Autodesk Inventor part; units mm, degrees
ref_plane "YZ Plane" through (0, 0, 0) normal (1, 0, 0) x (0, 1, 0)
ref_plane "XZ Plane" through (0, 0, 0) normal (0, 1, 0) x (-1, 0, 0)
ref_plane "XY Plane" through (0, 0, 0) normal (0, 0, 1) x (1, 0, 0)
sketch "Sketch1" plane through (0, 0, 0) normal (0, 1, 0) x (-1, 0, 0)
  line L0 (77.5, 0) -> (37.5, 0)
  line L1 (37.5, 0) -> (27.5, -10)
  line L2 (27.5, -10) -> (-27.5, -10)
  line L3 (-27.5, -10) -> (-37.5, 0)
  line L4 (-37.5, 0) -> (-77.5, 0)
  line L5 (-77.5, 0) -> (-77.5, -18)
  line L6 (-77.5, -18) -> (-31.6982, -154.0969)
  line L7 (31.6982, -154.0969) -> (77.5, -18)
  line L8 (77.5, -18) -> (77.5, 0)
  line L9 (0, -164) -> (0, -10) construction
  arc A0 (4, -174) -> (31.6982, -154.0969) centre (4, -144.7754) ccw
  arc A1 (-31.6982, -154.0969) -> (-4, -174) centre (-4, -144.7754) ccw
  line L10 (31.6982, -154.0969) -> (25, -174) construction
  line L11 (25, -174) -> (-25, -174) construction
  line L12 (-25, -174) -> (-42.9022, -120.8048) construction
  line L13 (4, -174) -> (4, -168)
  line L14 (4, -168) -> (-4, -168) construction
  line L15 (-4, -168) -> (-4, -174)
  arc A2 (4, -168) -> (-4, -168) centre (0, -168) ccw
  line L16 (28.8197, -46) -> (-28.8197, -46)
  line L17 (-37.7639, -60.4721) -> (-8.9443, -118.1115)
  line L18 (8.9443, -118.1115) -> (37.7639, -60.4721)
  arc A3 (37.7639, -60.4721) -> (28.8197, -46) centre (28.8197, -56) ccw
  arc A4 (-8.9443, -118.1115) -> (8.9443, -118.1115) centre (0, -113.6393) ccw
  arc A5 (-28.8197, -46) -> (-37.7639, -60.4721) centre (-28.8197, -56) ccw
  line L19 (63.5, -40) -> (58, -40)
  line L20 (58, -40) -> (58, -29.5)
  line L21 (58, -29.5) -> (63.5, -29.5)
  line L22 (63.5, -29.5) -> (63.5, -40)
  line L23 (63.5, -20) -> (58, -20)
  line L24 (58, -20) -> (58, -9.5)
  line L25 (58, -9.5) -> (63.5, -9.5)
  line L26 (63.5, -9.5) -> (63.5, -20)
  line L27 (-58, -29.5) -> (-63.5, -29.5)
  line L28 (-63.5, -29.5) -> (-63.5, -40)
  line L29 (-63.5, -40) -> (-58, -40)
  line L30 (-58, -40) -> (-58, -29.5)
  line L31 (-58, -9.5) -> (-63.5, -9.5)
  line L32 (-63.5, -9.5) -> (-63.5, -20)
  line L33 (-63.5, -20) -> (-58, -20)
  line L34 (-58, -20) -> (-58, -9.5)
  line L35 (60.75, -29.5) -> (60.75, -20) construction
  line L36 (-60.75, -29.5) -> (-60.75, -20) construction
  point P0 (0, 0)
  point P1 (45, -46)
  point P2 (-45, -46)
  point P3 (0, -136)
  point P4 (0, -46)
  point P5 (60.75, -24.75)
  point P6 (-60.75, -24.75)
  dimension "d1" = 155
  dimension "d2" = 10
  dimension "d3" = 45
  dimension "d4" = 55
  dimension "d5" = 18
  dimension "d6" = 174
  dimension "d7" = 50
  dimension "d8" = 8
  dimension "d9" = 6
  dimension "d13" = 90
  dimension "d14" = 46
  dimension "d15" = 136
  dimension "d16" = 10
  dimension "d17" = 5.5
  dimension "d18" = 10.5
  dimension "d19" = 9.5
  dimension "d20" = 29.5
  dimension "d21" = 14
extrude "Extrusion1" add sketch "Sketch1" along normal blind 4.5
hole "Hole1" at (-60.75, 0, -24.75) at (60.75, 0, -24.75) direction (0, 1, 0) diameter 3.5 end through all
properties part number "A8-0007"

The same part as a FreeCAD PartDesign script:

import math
import FreeCAD as App
import Part
import Sketcher

V = App.Vector
Q = App.Units.Quantity

doc = App.newDocument("Part")
body = doc.addObject("PartDesign::Body", "Body")

# Sketch on XZ plane
sketch1 = body.newObject("Sketcher::SketchObject", "Sketch")
sketch1.AttachmentSupport = (doc.getObject("XZ_Plane"), [""])
sketch1.MapMode = "FlatFace"
sketch1.addGeometry(Part.LineSegment(V(-77.5, -18, 0), V(-77.5, 0, 0)), False)
sketch1.addGeometry(Part.LineSegment(V(-77.5, 0, 0), V(-37.5, 0, 0)), False)
sketch1.addGeometry(Part.LineSegment(V(-37.5, 0, 0), V(-27.5, -10, 0)), False)
sketch1.addGeometry(Part.LineSegment(V(-27.5, -10, 0), V(27.5, -10, 0)), False)
sketch1.addGeometry(Part.LineSegment(V(27.5, -10, 0), V(37.5, 0, 0)), False)
sketch1.addGeometry(Part.LineSegment(V(37.5, 0, 0), V(77.5, 0, 0)), False)
sketch1.addGeometry(Part.LineSegment(V(77.5, 0, 0), V(77.5, -18, 0)), False)
sketch1.addGeometry(Part.LineSegment(V(77.5, -18, 0), V(31.6982, -154.0969, 0)), False)
sketch1.addGeometry(Part.ArcOfCircle(Part.Circle(V(4, -144.7754, 0), V(0, 0, 1), 29.224658), math.radians(-90), math.radians(-18.600048)), False)
sketch1.addGeometry(Part.LineSegment(V(4, -174, 0), V(4, -168, 0)), False)
sketch1.addGeometry(Part.ArcOfCircle(Part.Circle(V(0, -168, 0), V(0, 0, 1), 4), math.radians(0), math.radians(180)), False)
sketch1.addGeometry(Part.LineSegment(V(-4, -168, 0), V(-4, -174, 0)), False)
sketch1.addGeometry(Part.ArcOfCircle(Part.Circle(V(-4, -144.7754, 0), V(0, 0, 1), 29.2246), math.radians(-161.399952), math.radians(-90)), False)
sketch1.addGeometry(Part.LineSegment(V(-31.6982, -154.0969, 0), V(-77.5, -18, 0)), False)
sketch1.addGeometry(Part.LineSegment(V(28.8197, -46, 0), V(-28.8197, -46, 0)), False)
sketch1.addGeometry(Part.ArcOfCircle(Part.Circle(V(-28.8197, -56, 0), V(0, 0, 1), 9.99992), math.radians(90), math.radians(206.565051)), False)
sketch1.addGeometry(Part.LineSegment(V(-37.7639, -60.4721, 0), V(-8.9443, -118.1115, 0)), False)
sketch1.addGeometry(Part.ArcOfCircle(Part.Circle(V(0, -113.6393, 0), V(0, 0, 1), 10.000054), math.radians(-153.434693), math.radians(-26.565307)), False)
sketch1.addGeometry(Part.LineSegment(V(8.9443, -118.1115, 0), V(37.7639, -60.4721, 0)), False)
sketch1.addGeometry(Part.ArcOfCircle(Part.Circle(V(28.8197, -56, 0), V(0, 0, 1), 10), math.radians(-26.565051), math.radians(90)), False)
sketch1.addGeometry(Part.LineSegment(V(63.5, -29.5, 0), V(58, -29.5, 0)), False)
sketch1.addGeometry(Part.LineSegment(V(58, -29.5, 0), V(58, -40, 0)), False)
sketch1.addGeometry(Part.LineSegment(V(58, -40, 0), V(63.5, -40, 0)), False)
sketch1.addGeometry(Part.LineSegment(V(63.5, -40, 0), V(63.5, -29.5, 0)), False)
sketch1.addGeometry(Part.LineSegment(V(63.5, -9.5, 0), V(58, -9.5, 0)), False)
sketch1.addGeometry(Part.LineSegment(V(58, -9.5, 0), V(58, -20, 0)), False)
sketch1.addGeometry(Part.LineSegment(V(58, -20, 0), V(63.5, -20, 0)), False)
sketch1.addGeometry(Part.LineSegment(V(63.5, -20, 0), V(63.5, -9.5, 0)), False)
sketch1.addGeometry(Part.LineSegment(V(-63.5, -29.5, 0), V(-63.5, -40, 0)), False)
sketch1.addGeometry(Part.LineSegment(V(-63.5, -40, 0), V(-58, -40, 0)), False)
sketch1.addGeometry(Part.LineSegment(V(-58, -40, 0), V(-58, -29.5, 0)), False)
sketch1.addGeometry(Part.LineSegment(V(-58, -29.5, 0), V(-63.5, -29.5, 0)), False)
sketch1.addGeometry(Part.LineSegment(V(-63.5, -9.5, 0), V(-63.5, -20, 0)), False)
sketch1.addGeometry(Part.LineSegment(V(-63.5, -20, 0), V(-58, -20, 0)), False)
sketch1.addGeometry(Part.LineSegment(V(-58, -20, 0), V(-58, -9.5, 0)), False)
sketch1.addGeometry(Part.LineSegment(V(-58, -9.5, 0), V(-63.5, -9.5, 0)), False)
sketch1.addConstraint(Sketcher.Constraint("Coincident", 0, 2, 1, 1))
sketch1.addConstraint(Sketcher.Constraint("Coincident", 1, 2, 2, 1))
sketch1.addConstraint(Sketcher.Constraint("Coincident", 2, 2, 3, 1))
sketch1.addConstraint(Sketcher.Constraint("Coincident", 3, 2, 4, 1))
sketch1.addConstraint(Sketcher.Constraint("Coincident", 4, 2, 5, 1))
sketch1.addConstraint(Sketcher.Constraint("Coincident", 5, 2, 6, 1))
sketch1.addConstraint(Sketcher.Constraint("Coincident", 6, 2, 7, 1))
sketch1.addConstraint(Sketcher.Constraint("Tangent", 7, 2, 8, 2))
sketch1.addConstraint(Sketcher.Constraint("Coincident", 8, 1, 9, 1))
sketch1.addConstraint(Sketcher.Constraint("Tangent", 9, 2, 10, 1))
sketch1.addConstraint(Sketcher.Constraint("Tangent", 10, 2, 11, 1))
sketch1.addConstraint(Sketcher.Constraint("Coincident", 11, 2, 12, 2))
sketch1.addConstraint(Sketcher.Constraint("Tangent", 12, 1, 13, 1))
sketch1.addConstraint(Sketcher.Constraint("Coincident", 13, 2, 0, 1))
sketch1.addConstraint(Sketcher.Constraint("Tangent", 14, 2, 15, 1))
sketch1.addConstraint(Sketcher.Constraint("Tangent", 15, 2, 16, 1))
sketch1.addConstraint(Sketcher.Constraint("Tangent", 16, 2, 17, 1))
sketch1.addConstraint(Sketcher.Constraint("Tangent", 17, 2, 18, 1))
sketch1.addConstraint(Sketcher.Constraint("Tangent", 18, 2, 19, 1))
sketch1.addConstraint(Sketcher.Constraint("Tangent", 19, 2, 14, 1))
sketch1.addConstraint(Sketcher.Constraint("Coincident", 20, 2, 21, 1))
sketch1.addConstraint(Sketcher.Constraint("Coincident", 21, 2, 22, 1))
sketch1.addConstraint(Sketcher.Constraint("Coincident", 22, 2, 23, 1))
sketch1.addConstraint(Sketcher.Constraint("Coincident", 23, 2, 20, 1))
sketch1.addConstraint(Sketcher.Constraint("Coincident", 24, 2, 25, 1))
sketch1.addConstraint(Sketcher.Constraint("Coincident", 25, 2, 26, 1))
sketch1.addConstraint(Sketcher.Constraint("Coincident", 26, 2, 27, 1))
sketch1.addConstraint(Sketcher.Constraint("Coincident", 27, 2, 24, 1))
sketch1.addConstraint(Sketcher.Constraint("Coincident", 28, 2, 29, 1))
sketch1.addConstraint(Sketcher.Constraint("Coincident", 29, 2, 30, 1))
sketch1.addConstraint(Sketcher.Constraint("Coincident", 30, 2, 31, 1))
sketch1.addConstraint(Sketcher.Constraint("Coincident", 31, 2, 28, 1))
sketch1.addConstraint(Sketcher.Constraint("Coincident", 32, 2, 33, 1))
sketch1.addConstraint(Sketcher.Constraint("Coincident", 33, 2, 34, 1))
sketch1.addConstraint(Sketcher.Constraint("Coincident", 34, 2, 35, 1))
sketch1.addConstraint(Sketcher.Constraint("Coincident", 35, 2, 32, 1))
sketch1.addConstraint(Sketcher.Constraint("Vertical", 0))
sketch1.addConstraint(Sketcher.Constraint("Horizontal", 1))
sketch1.addConstraint(Sketcher.Constraint("Horizontal", 3))
sketch1.addConstraint(Sketcher.Constraint("Horizontal", 5))
sketch1.addConstraint(Sketcher.Constraint("Vertical", 6))
sketch1.addConstraint(Sketcher.Constraint("Vertical", 9))
sketch1.addConstraint(Sketcher.Constraint("Vertical", 11))
sketch1.addConstraint(Sketcher.Constraint("Horizontal", 14))
sketch1.addConstraint(Sketcher.Constraint("Horizontal", 20))
sketch1.addConstraint(Sketcher.Constraint("Vertical", 21))
sketch1.addConstraint(Sketcher.Constraint("Horizontal", 22))
sketch1.addConstraint(Sketcher.Constraint("Vertical", 23))
sketch1.addConstraint(Sketcher.Constraint("Horizontal", 24))
sketch1.addConstraint(Sketcher.Constraint("Vertical", 25))
sketch1.addConstraint(Sketcher.Constraint("Horizontal", 26))
sketch1.addConstraint(Sketcher.Constraint("Vertical", 27))
sketch1.addConstraint(Sketcher.Constraint("Vertical", 28))
sketch1.addConstraint(Sketcher.Constraint("Horizontal", 29))
sketch1.addConstraint(Sketcher.Constraint("Vertical", 30))
sketch1.addConstraint(Sketcher.Constraint("Horizontal", 31))
sketch1.addConstraint(Sketcher.Constraint("Vertical", 32))
sketch1.addConstraint(Sketcher.Constraint("Horizontal", 33))
sketch1.addConstraint(Sketcher.Constraint("Vertical", 34))
sketch1.addConstraint(Sketcher.Constraint("Horizontal", 35))
sketch1.addConstraint(Sketcher.Constraint("Equal", 8, 12))
sketch1.addConstraint(Sketcher.Constraint("Equal", 15, 17))
sketch1.addConstraint(Sketcher.Constraint("Equal", 17, 19))
sketch1.addConstraint(Sketcher.Constraint("Symmetric", 1, 2, 4, 2, -1, 1))
sketch1.addConstraint(Sketcher.Constraint("Symmetric", 8, 3, 12, 3, -2))
sketch1.addConstraint(Sketcher.Constraint("Symmetric", 0, 2, 5, 2, -2))
sketch1.addConstraint(Sketcher.Constraint("Symmetric", 16, 2, 17, 2, -2))
sketch1.addConstraint(Sketcher.Constraint("Symmetric", 22, 2, 28, 2, -2))
sketch1.addConstraint(Sketcher.Constraint("Symmetric", 20, 2, 30, 2, -2))
sketch1.addConstraint(Sketcher.Constraint("Symmetric", 26, 2, 32, 2, -2))
sketch1.addConstraint(Sketcher.Constraint("Symmetric", 24, 2, 34, 2, -2))
sketch1.addConstraint(Sketcher.Constraint("PointOnObject", 10, 3, -2))
sketch1.addConstraint(Sketcher.Constraint("Perpendicular", 2, 4))
sketch1.addConstraint(Sketcher.Constraint("Horizontal", 7, 2, 12, 1))
sketch1.addConstraint(Sketcher.Constraint("Vertical", 12, 3, 10, 2))
sketch1.addConstraint(Sketcher.Constraint("Vertical", 21, 2, 24, 2))
sketch1.addConstraint(Sketcher.Constraint("Vertical", 23, 2, 26, 2))
sketch1.addConstraint(Sketcher.Constraint("Equal", 23, 25))
sketch1.addConstraint(Sketcher.Constraint("Equal", 2, 4))
sketch1.addConstraint(Sketcher.Constraint("Radius", 10, Q("4 mm")))
sketch1.addConstraint(Sketcher.Constraint("Radius", 15, Q("10 mm")))
sketch1.addConstraint(Sketcher.Constraint("DistanceX", 3, 1, 3, 2, Q("55 mm")))
sketch1.addConstraint(Sketcher.Constraint("DistanceY", 0, 1, 0, 2, Q("18 mm")))
sketch1.addConstraint(Sketcher.Constraint("DistanceY", 9, 1, 9, 2, Q("6 mm")))
sketch1.addConstraint(Sketcher.Constraint("DistanceX", 20, 2, 20, 1, Q("5.5 mm")))
sketch1.addConstraint(Sketcher.Constraint("DistanceY", 21, 2, 21, 1, Q("10.5 mm")))
sketch1.addConstraint(Sketcher.Constraint("DistanceY", 2, 2, -1, 1, Q("10 mm")))
sketch1.addConstraint(Sketcher.Constraint("DistanceY", 8, 1, -1, 1, Q("174 mm")))
sketch1.addConstraint(Sketcher.Constraint("DistanceY", 14, 2, -1, 1, Q("46 mm")))
sketch1.addConstraint(Sketcher.Constraint("DistanceX", 0, 2, 2, 2, Q("50 mm")))
sketch1.addConstraint(Sketcher.Constraint("DistanceY", 19, 2, 21, 2, Q("6 mm")))
sketch1.addConstraint(Sketcher.Constraint("DistanceX", 22, 2, 6, 2, Q("14 mm")))
sketch1.addConstraint(Sketcher.Constraint("DistanceY", 24, 2, -1, 1, Q("9.5 mm")))
sketch1.addConstraint(Sketcher.Constraint("Angle", 7, Q("-108.6 deg")))
sketch1.addConstraint(Sketcher.Constraint("DistanceX", 14, 2, 14, 1, Q("57.6394 mm")))
sketch1.addConstraint(Sketcher.Constraint("DistanceX", 15, 2, -1, 1, Q("37.764 mm")))
pad1 = body.newObject("PartDesign::Pad", "Pad")
pad1.Profile = sketch1
pad1.Length = 4.5
pad1.Reversed = True

# Sketch on XZ plane
sketch2 = body.newObject("Sketcher::SketchObject", "Sketch001")
sketch2.AttachmentSupport = (doc.getObject("XZ_Plane"), [""])
sketch2.MapMode = "FlatFace"
sketch2.addGeometry(Part.Circle(V(-60.75, -24.75, 0), V(0, 0, 1), 1.75), False)
sketch2.addGeometry(Part.Circle(V(60.75, -24.75, 0), V(0, 0, 1), 1.75), False)
sketch2.addConstraint(Sketcher.Constraint("Equal", 0, 1))
sketch2.addConstraint(Sketcher.Constraint("Symmetric", 0, 3, 1, 3, -2))
sketch2.addConstraint(Sketcher.Constraint("Diameter", 0, Q("3.5 mm")))
sketch2.addConstraint(Sketcher.Constraint("DistanceX", 0, 3, 1, 3, Q("121.5 mm")))
sketch2.addConstraint(Sketcher.Constraint("DistanceY", 0, 3, -1, 1, Q("24.75 mm")))
doc.recompute()
hole = body.newObject("PartDesign::Hole", "Hole")
hole.Profile = sketch2
hole.ThreadType = "None"
hole.Diameter = 3.5
hole.DepthType = "ThroughAll"

doc.recompute()
